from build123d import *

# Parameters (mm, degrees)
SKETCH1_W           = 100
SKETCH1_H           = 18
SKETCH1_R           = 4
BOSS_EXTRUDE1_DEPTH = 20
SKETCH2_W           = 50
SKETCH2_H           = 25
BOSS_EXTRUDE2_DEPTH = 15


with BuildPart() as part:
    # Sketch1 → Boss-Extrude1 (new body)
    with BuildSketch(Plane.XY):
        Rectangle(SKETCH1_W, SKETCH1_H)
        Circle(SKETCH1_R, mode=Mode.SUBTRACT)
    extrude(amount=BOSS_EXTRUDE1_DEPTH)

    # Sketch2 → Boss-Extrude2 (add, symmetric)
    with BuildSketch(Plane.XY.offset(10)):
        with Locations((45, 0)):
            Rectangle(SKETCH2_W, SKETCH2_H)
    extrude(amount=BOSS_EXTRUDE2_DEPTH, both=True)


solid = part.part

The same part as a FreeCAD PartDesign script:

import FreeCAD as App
import Part
import Sketcher
from FreeCAD import Vector

doc = App.newDocument("Part")
params = doc.addObject("Spreadsheet::Sheet", "Params")
for row, (alias, value) in enumerate([
    ("sketch1_diameter", "8 mm"),
    ("sketch1_width", "100 mm"),
    ("sketch1_height", "18 mm"),
    ("pad1_length", "20 mm"),
    ("sketch2_width", "50 mm"),
    ("sketch2_height", "25 mm"),
    ("pad2_length", "30 mm"),
], start=1):
    params.set(f"A{row}", alias)
    params.set(f"B{row}", "=" + value)
    params.setAlias(f"B{row}", alias)

body = doc.addObject("PartDesign::Body", "Body")

sketch1 = body.newObject("Sketcher::SketchObject", "Sketch")
sketch1.AttachmentSupport = (doc.getObject("XY_Plane"), [""])
sketch1.MapMode = "FlatFace"
sketch1.addGeometry([
    Part.LineSegment(Vector(-50, 9, 0), Vector(-50, -9, 0)),
    Part.LineSegment(Vector(-50, -9, 0), Vector(50, -9, 0)),
    Part.LineSegment(Vector(50, -9, 0), Vector(50, 9, 0)),
    Part.LineSegment(Vector(50, 9, 0), Vector(-50, 9, 0)),
    Part.Circle(Vector(0, 0, 0), Vector(0, 0, 1), 4),
], False)
sketch1.addConstraint([
    Sketcher.Constraint("Coincident", 0, 2, 1, 1),
    Sketcher.Constraint("Coincident", 1, 2, 2, 1),
    Sketcher.Constraint("Coincident", 2, 2, 3, 1),
    Sketcher.Constraint("Coincident", 3, 2, 0, 1),
    Sketcher.Constraint("Vertical", 0),
    Sketcher.Constraint("Horizontal", 1),
    Sketcher.Constraint("Vertical", 2),
    Sketcher.Constraint("Horizontal", 3),
    Sketcher.Constraint("Coincident", 4, 3, -1, 1),
    Sketcher.Constraint("Symmetric", 0, 2, 2, 2, -1, 1),
    Sketcher.Constraint("Diameter", 4, 8.0),
    Sketcher.Constraint("DistanceX", 1, 1, 1, 2, 100.0),
    Sketcher.Constraint("DistanceY", 0, 2, 0, 1, 18.0),
])
sketch1.setExpression("Constraints[10]", "Params.sketch1_diameter")
sketch1.setExpression("Constraints[11]", "Params.sketch1_width")
sketch1.setExpression("Constraints[12]", "Params.sketch1_height")
pad1 = body.newObject("PartDesign::Pad", "Pad")
pad1.Profile = sketch1
pad1.setExpression("Length", "Params.pad1_length")

sketch2 = body.newObject("Sketcher::SketchObject", "Sketch001")
sketch2.AttachmentSupport = (doc.getObject("XY_Plane"), [""])
sketch2.MapMode = "FlatFace"
sketch2.AttachmentOffset = App.Placement(Vector(0, 0, 10), App.Rotation())
sketch2.addGeometry([
    Part.LineSegment(Vector(20, 12, 0), Vector(20, -12, 0)),
    Part.LineSegment(Vector(20, -12, 0), Vector(70, -12, 0)),
    Part.LineSegment(Vector(70, -12, 0), Vector(70, 12, 0)),
    Part.LineSegment(Vector(70, 12, 0), Vector(20, 12, 0)),
], False)
sketch2.addConstraint([
    Sketcher.Constraint("Coincident", 0, 2, 1, 1),
    Sketcher.Constraint("Coincident", 1, 2, 2, 1),
    Sketcher.Constraint("Coincident", 2, 2, 3, 1),
    Sketcher.Constraint("Coincident", 3, 2, 0, 1),
    Sketcher.Constraint("Vertical", 0),
    Sketcher.Constraint("Horizontal", 1),
    Sketcher.Constraint("Vertical", 2),
    Sketcher.Constraint("Horizontal", 3),
    Sketcher.Constraint("DistanceX", 1, 1, 1, 2, 50.0),
    Sketcher.Constraint("DistanceY", 0, 2, 0, 1, 25.0),
    Sketcher.Constraint("DistanceX", -1, 1, 0, 2, 20.0),
    Sketcher.Constraint("DistanceY", 0, 2, -1, 1, 12.5),
])
sketch2.setExpression("Constraints[8]", "Params.sketch2_width")
sketch2.setExpression("Constraints[9]", "Params.sketch2_height")
pad2 = body.newObject("PartDesign::Pad", "Pad001")
pad2.Profile = sketch2
pad2.setExpression("Length", "Params.pad2_length")
pad2.Midplane = True

doc.recompute()
